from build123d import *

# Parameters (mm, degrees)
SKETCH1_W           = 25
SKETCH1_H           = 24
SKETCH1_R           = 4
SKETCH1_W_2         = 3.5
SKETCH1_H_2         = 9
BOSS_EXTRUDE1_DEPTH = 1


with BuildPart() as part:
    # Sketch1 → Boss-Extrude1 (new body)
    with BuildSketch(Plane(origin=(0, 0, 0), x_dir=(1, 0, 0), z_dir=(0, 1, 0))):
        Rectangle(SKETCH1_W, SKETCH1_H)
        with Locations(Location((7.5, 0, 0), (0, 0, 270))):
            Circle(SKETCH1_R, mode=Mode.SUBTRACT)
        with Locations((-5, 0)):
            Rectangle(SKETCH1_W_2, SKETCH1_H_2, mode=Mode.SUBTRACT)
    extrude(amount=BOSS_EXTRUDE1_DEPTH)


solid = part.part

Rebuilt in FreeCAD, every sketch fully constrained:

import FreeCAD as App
import Part
import Sketcher
from FreeCAD import Vector


def add_polygon(sketch, points):
    """Adds a closed chain of lines whose ends are joined by coincident constraints."""
    first, n = sketch.GeometryCount, len(points)
    for a, b in zip(points, points[1:] + points[:1]):
        sketch.addGeometry(Part.LineSegment(App.Vector(*a, 0), App.Vector(*b, 0)), False)
    for i in range(n):
        sketch.addConstraint(Sketcher.Constraint("Coincident", first + i, 2, first + (i + 1) % n, 1))

doc = App.newDocument("Part")
params = doc.addObject("Spreadsheet::Sheet", "Params")
for row, (alias, value) in enumerate([
    ("sketch1_diameter", "8 mm"),
    ("sketch1_width", "25 mm"),
    ("sketch1_height", "24 mm"),
    ("sketch1_height2", "9 mm"),
    ("sketch1_width2", "3.5 mm"),
    ("pad1_length", "1 mm"),
], start=1):
    params.set(f"A{row}", alias)
    params.set(f"B{row}", "=" + value)
    params.setAlias(f"B{row}", alias)

body = doc.addObject("PartDesign::Body", "Body")

sketch1 = body.newObject("Sketcher::SketchObject", "Sketch")
sketch1.AttachmentSupport = (doc.getObject("XZ_Plane"), [""])
sketch1.MapMode = "FlatFace"
add_polygon(sketch1, [(-12.5, -12), (-12.5, 12), (12.5, 12), (12.5, -12)])
add_polygon(sketch1, [(-3.2, 4.5), (-6.8, 4.5), (-6.8, -4.5), (-3.2, -4.5)])
sketch1.addGeometry(Part.Circle(Vector(7.5, 0, 0), Vector(0, 0, 1), 4), False)
sketch1.addConstraint(Sketcher.Constraint("Vertical", 0))
sketch1.addConstraint(Sketcher.Constraint("Horizontal", 1))
sketch1.addConstraint(Sketcher.Constraint("Vertical", 2))
sketch1.addConstraint(Sketcher.Constraint("Horizontal", 3))
sketch1.addConstraint(Sketcher.Constraint("Horizontal", 4))
sketch1.addConstraint(Sketcher.Constraint("Vertical", 5))
sketch1.addConstraint(Sketcher.Constraint("Horizontal", 6))
sketch1.addConstraint(Sketcher.Constraint("Vertical", 7))
sketch1.addConstraint(Sketcher.Constraint("Symmetric", 0, 2, 2, 2, -1, 1))
sketch1.addConstraint(Sketcher.Constraint("PointOnObject", 8, 3, -1))
sketch1.addConstraint(Sketcher.Constraint("Diameter", 8, 8.0))
sketch1.addConstraint(Sketcher.Constraint("DistanceX", 1, 1, 1, 2, 25.0))
sketch1.addConstraint(Sketcher.Constraint("DistanceY", 0, 1, 0, 2, 24.0))
sketch1.addConstraint(Sketcher.Constraint("DistanceY", 5, 2, 5, 1, 9.0))
sketch1.addConstraint(Sketcher.Constraint("DistanceX", 4, 2, 4, 1, 3.5))
sketch1.addConstraint(Sketcher.Constraint("DistanceX", 0, 2, 8, 3, 20.0))
sketch1.addConstraint(Sketcher.Constraint("DistanceY", -1, 1, 4, 2, 4.5))
sketch1.addConstraint(Sketcher.Constraint("DistanceX", 4, 2, -1, 1, 6.75))
sketch1.setExpression("Constraints[18]", "Params.sketch1_diameter")
sketch1.setExpression("Constraints[19]", "Params.sketch1_width")
sketch1.setExpression("Constraints[20]", "Params.sketch1_height")
sketch1.setExpression("Constraints[21]", "Params.sketch1_height2")
sketch1.setExpression("Constraints[22]", "Params.sketch1_width2")
pad1 = body.newObject("PartDesign::Pad", "Pad")
pad1.Profile = sketch1
pad1.setExpression("Length", "Params.pad1_length")
pad1.Reversed = True

doc.recompute()
